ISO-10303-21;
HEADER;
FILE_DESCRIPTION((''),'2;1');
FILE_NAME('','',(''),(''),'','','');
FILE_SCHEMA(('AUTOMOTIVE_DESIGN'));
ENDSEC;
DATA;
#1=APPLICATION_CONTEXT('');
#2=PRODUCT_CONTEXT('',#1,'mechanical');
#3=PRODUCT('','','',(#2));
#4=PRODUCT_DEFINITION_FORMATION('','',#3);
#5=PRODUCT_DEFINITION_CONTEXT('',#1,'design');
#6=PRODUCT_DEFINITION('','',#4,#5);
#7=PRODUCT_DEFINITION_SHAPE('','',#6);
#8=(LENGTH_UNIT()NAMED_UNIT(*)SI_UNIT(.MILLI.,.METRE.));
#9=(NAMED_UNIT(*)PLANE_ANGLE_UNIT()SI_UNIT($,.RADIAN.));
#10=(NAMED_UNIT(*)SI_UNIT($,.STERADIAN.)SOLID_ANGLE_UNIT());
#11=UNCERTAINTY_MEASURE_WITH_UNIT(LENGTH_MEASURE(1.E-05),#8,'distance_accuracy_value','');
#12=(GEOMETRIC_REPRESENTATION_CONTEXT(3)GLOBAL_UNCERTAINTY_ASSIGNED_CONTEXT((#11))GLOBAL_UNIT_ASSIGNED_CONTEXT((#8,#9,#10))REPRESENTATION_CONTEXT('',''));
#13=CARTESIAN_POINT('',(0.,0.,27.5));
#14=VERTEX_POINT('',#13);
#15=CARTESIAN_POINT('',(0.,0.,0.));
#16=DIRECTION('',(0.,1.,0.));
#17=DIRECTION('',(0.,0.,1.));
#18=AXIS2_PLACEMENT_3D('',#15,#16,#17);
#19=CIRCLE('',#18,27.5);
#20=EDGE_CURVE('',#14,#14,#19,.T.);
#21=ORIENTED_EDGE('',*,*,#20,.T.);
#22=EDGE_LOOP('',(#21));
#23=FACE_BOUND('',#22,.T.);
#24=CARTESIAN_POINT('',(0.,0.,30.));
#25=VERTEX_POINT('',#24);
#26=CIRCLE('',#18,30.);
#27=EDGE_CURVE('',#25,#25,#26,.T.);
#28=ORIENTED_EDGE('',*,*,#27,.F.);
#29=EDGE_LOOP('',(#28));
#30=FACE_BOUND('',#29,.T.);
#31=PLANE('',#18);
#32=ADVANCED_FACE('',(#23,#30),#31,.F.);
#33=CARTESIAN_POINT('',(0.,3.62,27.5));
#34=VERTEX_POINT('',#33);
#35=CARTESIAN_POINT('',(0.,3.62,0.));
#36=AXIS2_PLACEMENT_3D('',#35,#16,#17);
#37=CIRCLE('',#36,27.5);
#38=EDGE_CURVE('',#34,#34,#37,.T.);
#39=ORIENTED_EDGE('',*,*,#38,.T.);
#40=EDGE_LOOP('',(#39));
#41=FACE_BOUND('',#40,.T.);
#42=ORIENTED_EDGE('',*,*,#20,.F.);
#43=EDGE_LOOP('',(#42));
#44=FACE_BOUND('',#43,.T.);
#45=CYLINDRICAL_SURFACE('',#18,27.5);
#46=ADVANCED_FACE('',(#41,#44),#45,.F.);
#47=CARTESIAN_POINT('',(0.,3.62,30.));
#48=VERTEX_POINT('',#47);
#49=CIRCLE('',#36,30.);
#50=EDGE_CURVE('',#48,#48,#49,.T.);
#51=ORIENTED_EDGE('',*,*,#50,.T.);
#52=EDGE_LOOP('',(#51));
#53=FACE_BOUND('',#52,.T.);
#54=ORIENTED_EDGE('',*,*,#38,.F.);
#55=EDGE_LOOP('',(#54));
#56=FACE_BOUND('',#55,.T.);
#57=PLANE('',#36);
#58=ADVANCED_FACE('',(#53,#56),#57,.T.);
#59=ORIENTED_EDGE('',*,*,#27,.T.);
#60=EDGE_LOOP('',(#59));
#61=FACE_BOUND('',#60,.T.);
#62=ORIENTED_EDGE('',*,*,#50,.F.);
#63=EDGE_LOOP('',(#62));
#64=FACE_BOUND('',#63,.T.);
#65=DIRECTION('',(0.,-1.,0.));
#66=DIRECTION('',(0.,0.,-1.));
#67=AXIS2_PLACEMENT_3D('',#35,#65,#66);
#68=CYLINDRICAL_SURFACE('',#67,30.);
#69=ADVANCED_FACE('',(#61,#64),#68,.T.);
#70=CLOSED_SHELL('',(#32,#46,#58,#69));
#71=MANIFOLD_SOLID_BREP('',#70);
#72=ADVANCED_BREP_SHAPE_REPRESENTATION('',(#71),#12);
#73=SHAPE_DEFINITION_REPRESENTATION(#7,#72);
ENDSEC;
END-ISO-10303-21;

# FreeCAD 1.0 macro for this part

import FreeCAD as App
import Part
import Sketcher
Q = App.Units.Quantity

doc = App.newDocument("Part")
params = doc.addObject("Spreadsheet::Sheet", "Params")
for row, (alias, value) in enumerate([
    ("sketch1_diameter", "60 mm"),
    ("pad1_length", "3.62 mm"),
    ("sketch2_diameter", "55 mm"),
    ("pocket1_length", "3.62 mm"),
], start=1):
    params.set(f"A{row}", alias)
    params.set(f"B{row}", "=" + value)
    params.setAlias(f"B{row}", alias)

body = doc.addObject("PartDesign::Body", "Body")

sketch1 = doc.addObject("Sketcher::SketchObject", "Sketch")
body.addObject(sketch1)
sketch1.AttachmentSupport = (doc.XZ_Plane, [""])
sketch1.MapMode = "FlatFace"
sketch1.addGeometry(Part.Circle(App.Vector(0, 0, 0), App.Vector(0, 0, 1), 30), False)
sketch1.addConstraint([
    Sketcher.Constraint("Coincident", 0, 3, -1, 1),
    Sketcher.Constraint("Diameter", 0, Q("60 mm")),
])
sketch1.setExpression("Constraints[1]", "Params.sketch1_diameter")
pad1 = doc.addObject("PartDesign::Pad", "Pad")
body.addObject(pad1)
pad1.Profile = sketch1
pad1.setExpression("Length", "Params.pad1_length")
pad1.Reversed = True

sketch2 = doc.addObject("Sketcher::SketchObject", "Sketch001")
body.addObject(sketch2)
sketch2.AttachmentSupport = (doc.XZ_Plane, [""])
sketch2.MapMode = "FlatFace"
sketch2.AttachmentOffset = App.Placement(App.Vector(0, 0, -3.62), App.Rotation())
sketch2.addGeometry(Part.Circle(App.Vector(0, 0, 0), App.Vector(0, 0, 1), 28), False)
sketch2.addConstraint([
    Sketcher.Constraint("Coincident", 0, 3, -1, 1),
    Sketcher.Constraint("Diameter", 0, Q("55 mm")),
])
sketch2.setExpression("Constraints[1]", "Params.sketch2_diameter")
pocket1 = doc.addObject("PartDesign::Pocket", "Pocket")
body.addObject(pocket1)
pocket1.Profile = sketch2
pocket1.setExpression("Length", "Params.pocket1_length")
pocket1.Reversed = True

doc.recompute()
